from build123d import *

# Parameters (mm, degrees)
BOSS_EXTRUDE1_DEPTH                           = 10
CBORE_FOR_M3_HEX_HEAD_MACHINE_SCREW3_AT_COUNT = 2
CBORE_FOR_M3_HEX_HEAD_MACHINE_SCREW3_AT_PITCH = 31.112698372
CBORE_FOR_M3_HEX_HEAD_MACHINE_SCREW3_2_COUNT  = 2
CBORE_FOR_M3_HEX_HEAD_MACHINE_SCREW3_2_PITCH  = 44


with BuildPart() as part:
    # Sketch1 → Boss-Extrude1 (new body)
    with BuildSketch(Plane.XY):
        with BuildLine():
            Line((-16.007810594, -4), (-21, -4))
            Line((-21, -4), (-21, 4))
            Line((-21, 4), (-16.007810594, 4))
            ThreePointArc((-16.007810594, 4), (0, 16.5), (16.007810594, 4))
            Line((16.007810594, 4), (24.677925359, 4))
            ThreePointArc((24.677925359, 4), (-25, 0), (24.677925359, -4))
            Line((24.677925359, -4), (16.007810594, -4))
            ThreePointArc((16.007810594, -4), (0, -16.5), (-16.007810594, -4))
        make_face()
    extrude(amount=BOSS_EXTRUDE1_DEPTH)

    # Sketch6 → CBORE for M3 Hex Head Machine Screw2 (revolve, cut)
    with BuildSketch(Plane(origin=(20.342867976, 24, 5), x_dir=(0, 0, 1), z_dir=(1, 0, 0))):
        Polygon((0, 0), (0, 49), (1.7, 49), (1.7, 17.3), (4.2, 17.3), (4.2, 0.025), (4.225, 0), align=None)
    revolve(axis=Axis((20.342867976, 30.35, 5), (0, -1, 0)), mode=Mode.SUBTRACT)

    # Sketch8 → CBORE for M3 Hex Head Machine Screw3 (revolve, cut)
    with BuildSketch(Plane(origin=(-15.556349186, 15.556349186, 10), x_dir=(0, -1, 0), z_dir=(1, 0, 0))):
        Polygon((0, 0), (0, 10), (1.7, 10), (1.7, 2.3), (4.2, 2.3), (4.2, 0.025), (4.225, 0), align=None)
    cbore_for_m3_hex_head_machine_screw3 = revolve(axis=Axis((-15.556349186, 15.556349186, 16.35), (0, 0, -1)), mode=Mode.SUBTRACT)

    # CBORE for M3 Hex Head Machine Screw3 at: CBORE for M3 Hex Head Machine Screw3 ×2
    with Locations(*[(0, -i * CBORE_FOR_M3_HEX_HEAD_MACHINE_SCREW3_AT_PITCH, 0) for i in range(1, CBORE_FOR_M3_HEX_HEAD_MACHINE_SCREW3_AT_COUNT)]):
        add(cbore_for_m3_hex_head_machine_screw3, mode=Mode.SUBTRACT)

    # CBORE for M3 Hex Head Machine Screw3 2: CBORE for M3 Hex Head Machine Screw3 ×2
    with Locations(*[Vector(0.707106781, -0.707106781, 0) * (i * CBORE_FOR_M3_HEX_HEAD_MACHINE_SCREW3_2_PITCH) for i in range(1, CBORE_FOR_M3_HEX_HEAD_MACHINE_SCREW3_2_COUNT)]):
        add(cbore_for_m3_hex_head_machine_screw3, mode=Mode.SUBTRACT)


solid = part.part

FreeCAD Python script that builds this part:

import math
import FreeCAD as App
import Part
import Sketcher

V = App.Vector
Q = App.Units.Quantity

doc = App.newDocument("Part")
params = doc.addObject("Spreadsheet::Sheet", "Params")
for row, (alias, value) in enumerate([
    ("sketch1_radius", "25 mm"),
    ("sketch1_radius2", "16.5 mm"),
    ("sketch1_height", "8 mm"),
    ("pad1_length", "10 mm"),
    ("sketch2_width", "49 mm"),
    ("sketch2_width2", "31.7 mm"),
    ("sketch2_height", "2.5 mm"),
    ("sketch2_height2", "1.7 mm"),
    ("groove_angle", "360 deg"),
    ("sketch3_height", "10 mm"),
    ("sketch3_width", "2.5 mm"),
    ("sketch3_width2", "1.7 mm"),
    ("sketch3_height2", "7.7 mm"),
    ("groove2_angle", "360 deg"),
    ("linearpattern_pitch", "31.112698 mm"),
    ("linearpattern2_pitch", "44 mm"),
], start=1):
    params.set(f"A{row}", alias)
    params.set(f"B{row}", "=" + value)
    params.setAlias(f"B{row}", alias)

body = doc.addObject("PartDesign::Body", "Body")

# Sketch on XY plane
sketch1 = doc.addObject("Sketcher::SketchObject", "Sketch")
body.addObject(sketch1)
sketch1.AttachmentSupport = (doc.XY_Plane, [""])
sketch1.MapMode = "FlatFace"
sketch1.addGeometry([
    Part.LineSegment(V(-16, -4, 0), V(-21, -4, 0)),  # 0
    Part.LineSegment(V(-21, -4, 0), V(-21, 4, 0)),  # 1
    Part.LineSegment(V(-21, 4, 0), V(-16, 4, 0)),  # 2
    Part.ArcOfCircle(Part.Circle(V(0, 0, 0), V(0, 0, 1), 16.5), math.radians(14), math.radians(166)),  # 3
    Part.LineSegment(V(16, 4, 0), V(24.7, 4, 0)),  # 4
    Part.ArcOfCircle(Part.Circle(V(0, 0, 0), V(0, 0, 1), 25), math.radians(9), math.radians(351)),  # 5
    Part.LineSegment(V(24.7, -4, 0), V(16, -4, 0)),  # 6
    Part.ArcOfCircle(Part.Circle(V(0, 0, 0), V(0, 0, 1), 16.5), math.radians(-166), math.radians(-14)),  # 7
], False)
sketch1.addConstraint([
    Sketcher.Constraint("Coincident", 0, 2, 1, 1),
    Sketcher.Constraint("Coincident", 1, 2, 2, 1),
    Sketcher.Constraint("Coincident", 2, 2, 3, 2),
    Sketcher.Constraint("Coincident", 3, 1, 4, 1),
    Sketcher.Constraint("Coincident", 4, 2, 5, 1),
    Sketcher.Constraint("Coincident", 5, 2, 6, 1),
    Sketcher.Constraint("Coincident", 6, 2, 7, 2),
    Sketcher.Constraint("Coincident", 7, 1, 0, 1),
    Sketcher.Constraint("Horizontal", 0),
    Sketcher.Constraint("Vertical", 1),
    Sketcher.Constraint("Horizontal", 2),
    Sketcher.Constraint("Horizontal", 4),
    Sketcher.Constraint("Horizontal", 6),
    Sketcher.Constraint("Coincident", 3, 3, -1, 1),
    Sketcher.Constraint("Coincident", 5, 3, -1, 1),
    Sketcher.Constraint("Coincident", 7, 3, -1, 1),
    Sketcher.Constraint("Equal", 3, 7),
    Sketcher.Constraint("Horizontal", 2, 2, 3, 1),
    Sketcher.Constraint("Horizontal", 0, 2, 5, 2),
    Sketcher.Constraint("Vertical", 4, 2, 5, 2),
    Sketcher.Constraint("Radius", 5, 25.0),
    Sketcher.Constraint("Radius", 3, 16.5),
    Sketcher.Constraint("DistanceY", 1, 1, 1, 2, 8.0),
    Sketcher.Constraint("DistanceX", 0, 2, -1, 1, 21.0),
])
sketch1.setExpression("Constraints[20]", "Params.sketch1_radius")
sketch1.setExpression("Constraints[21]", "Params.sketch1_radius2")
sketch1.setExpression("Constraints[22]", "Params.sketch1_height")
pad1 = doc.addObject("PartDesign::Pad", "Pad")
body.addObject(pad1)
pad1.Profile = sketch1
pad1.setExpression("Length", "Params.pad1_length")

# Sketch on YZ plane
sketch2 = doc.addObject("Sketcher::SketchObject", "Sketch001")
body.addObject(sketch2)
sketch2.AttachmentSupport = (doc.YZ_Plane, [""])
sketch2.MapMode = "FlatFace"
sketch2.AttachmentOffset = App.Placement(V(0, 0, 20.342868), App.Rotation())
sketch2.addGeometry([
    Part.LineSegment(V(-25, 5, 0), V(24, 5, 0)),  # 0
    Part.LineSegment(V(24, 5, 0), V(24, 9.225, 0)),  # 1
    Part.LineSegment(V(24, 9.225, 0), V(23.975, 9.2, 0)),  # 2
    Part.LineSegment(V(23.975, 9.2, 0), V(6.7, 9.2, 0)),  # 3
    Part.LineSegment(V(6.7, 9.2, 0), V(6.7, 6.7, 0)),  # 4
    Part.LineSegment(V(6.7, 6.7, 0), V(-25, 6.7, 0)),  # 5
    Part.LineSegment(V(-25, 6.7, 0), V(-25, 5, 0)),  # 6
], False)
sketch2.addGeometry(Part.LineSegment(V(24, 5, 0), V(-25, 5, 0)), True)  # axis
sketch2.addConstraint([
    Sketcher.Constraint("Coincident", 0, 2, 1, 1),
    Sketcher.Constraint("Coincident", 1, 2, 2, 1),
    Sketcher.Constraint("Coincident", 2, 2, 3, 1),
    Sketcher.Constraint("Coincident", 3, 2, 4, 1),
    Sketcher.Constraint("Coincident", 4, 2, 5, 1),
    Sketcher.Constraint("Coincident", 5, 2, 6, 1),
    Sketcher.Constraint("Coincident", 6, 2, 0, 1),
    Sketcher.Constraint("Horizontal", 0),
    Sketcher.Constraint("Vertical", 1),
    Sketcher.Constraint("Horizontal", 3),
    Sketcher.Constraint("Vertical", 4),
    Sketcher.Constraint("Horizontal", 5),
    Sketcher.Constraint("Vertical", 6),
    Sketcher.Constraint("Horizontal", 7),
    Sketcher.Constraint("Coincident", 7, 1, 0, 2),
    Sketcher.Constraint("Vertical", 5, 2, 7, 2),
    Sketcher.Constraint("DistanceX", 0, 1, 0, 2, 49.0),
    Sketcher.Constraint("Angle", 2, Q("-135 deg")),
    Sketcher.Constraint("DistanceX", 5, 2, 5, 1, 31.7),
    Sketcher.Constraint("DistanceY", 4, 2, 4, 1, 2.5),
    Sketcher.Constraint("DistanceY", 6, 2, 6, 1, 1.7),
    Sketcher.Constraint("DistanceX", -1, 1, 0, 2, 24.0),
    Sketcher.Constraint("DistanceY", -1, 1, 0, 2, 5.0),
    Sketcher.Constraint("DistanceX", 3, 2, 3, 1, 17.275),
])
sketch2.setExpression("Constraints[16]", "Params.sketch2_width")
sketch2.setExpression("Constraints[18]", "Params.sketch2_width2")
sketch2.setExpression("Constraints[19]", "Params.sketch2_height")
sketch2.setExpression("Constraints[20]", "Params.sketch2_height2")
groove = doc.addObject("PartDesign::Groove", "Groove")
body.addObject(groove)
groove.Profile = sketch2
groove.ReferenceAxis = (sketch2, ["Axis0"])
groove.setExpression("Angle", "Params.groove_angle")

# Sketch on YZ plane
sketch3 = doc.addObject("Sketcher::SketchObject", "Sketch002")
body.addObject(sketch3)
sketch3.AttachmentSupport = (doc.YZ_Plane, [""])
sketch3.MapMode = "FlatFace"
sketch3.AttachmentOffset = App.Placement(V(0, 0, -15.556349), App.Rotation())
sketch3.addGeometry([
    Part.LineSegment(V(15.556, 0, 0), V(15.556, 10, 0)),  # 0
    Part.LineSegment(V(15.556, 10, 0), V(11.331, 10, 0)),  # 1
    Part.LineSegment(V(11.331, 10, 0), V(11.356, 9.975, 0)),  # 2
    Part.LineSegment(V(11.356, 9.975, 0), V(11.356, 7.7, 0)),  # 3
    Part.LineSegment(V(11.356, 7.7, 0), V(13.856, 7.7, 0)),  # 4
    Part.LineSegment(V(13.856, 7.7, 0), V(13.856, 0, 0)),  # 5
    Part.LineSegment(V(13.856, 0, 0), V(15.556, 0, 0)),  # 6
], False)
sketch3.addGeometry(Part.LineSegment(V(15.556, 10, 0), V(15.556, 0, 0)), True)  # axis
sketch3.addConstraint([
    Sketcher.Constraint("Coincident", 0, 2, 1, 1),
    Sketcher.Constraint("Coincident", 1, 2, 2, 1),
    Sketcher.Constraint("Coincident", 2, 2, 3, 1),
    Sketcher.Constraint("Coincident", 3, 2, 4, 1),
    Sketcher.Constraint("Coincident", 4, 2, 5, 1),
    Sketcher.Constraint("Coincident", 5, 2, 6, 1),
    Sketcher.Constraint("Coincident", 6, 2, 0, 1),
    Sketcher.Constraint("Vertical", 0),
    Sketcher.Constraint("Horizontal", 1),
    Sketcher.Constraint("Vertical", 3),
    Sketcher.Constraint("Horizontal", 4),
    Sketcher.Constraint("Vertical", 5),
    Sketcher.Constraint("Horizontal", 6),
    Sketcher.Constraint("Vertical", 7),
    Sketcher.Constraint("Coincident", 7, 1, 0, 2),
    Sketcher.Constraint("PointOnObject", 5, 2, -1),
    Sketcher.Constraint("PointOnObject", 7, 2, -1),
    Sketcher.Constraint("DistanceY", 0, 1, 0, 2, 10.0),
    Sketcher.Constraint("Angle", 2, Q("-45 deg")),
    Sketcher.Constraint("DistanceX", 4, 1, 4, 2, 2.5),
    Sketcher.Constraint("DistanceX", 6, 1, 6, 2, 1.7),
    Sketcher.Constraint("DistanceY", 5, 2, 5, 1, 7.7),
    Sketcher.Constraint("DistanceX", 1, 2, 1, 1, 4.225),
    Sketcher.Constraint("DistanceX", -1, 1, 0, 2, 15.556349),
])
sketch3.setExpression("Constraints[17]", "Params.sketch3_height")
sketch3.setExpression("Constraints[19]", "Params.sketch3_width")
sketch3.setExpression("Constraints[20]", "Params.sketch3_width2")
sketch3.setExpression("Constraints[21]", "Params.sketch3_height2")
groove2 = doc.addObject("PartDesign::Groove", "Groove001")
body.addObject(groove2)
groove2.Profile = sketch3
groove2.ReferenceAxis = (sketch3, ["Axis0"])
groove2.setExpression("Angle", "Params.groove2_angle")
doc.recompute()

linearpattern = doc.addObject("PartDesign::LinearPattern", "LinearPattern")
body.addObject(linearpattern)
linearpattern.Originals = [groove2]
linearpattern.Direction = (doc.Y_Axis, [""])
linearpattern.Mode = "offset"
linearpattern.setExpression("Offset", "Params.linearpattern_pitch")
linearpattern.Occurrences = 2
linearpattern.Reversed = True
body.Tip = linearpattern
doc.recompute()

datumline = doc.addObject("PartDesign::Line", "DatumLine")
body.addObject(datumline)
datumline.Placement = App.Placement(V(0, 0, 0), App.Rotation(V(0, 0, 1), V(0.707106781, -0.707106781, 0)))
linearpattern2 = doc.addObject("PartDesign::LinearPattern", "LinearPattern001")
body.addObject(linearpattern2)
linearpattern2.Originals = [groove2]
linearpattern2.Direction = (datumline, [""])
linearpattern2.Mode = "offset"
linearpattern2.setExpression("Offset", "Params.linearpattern2_pitch")
linearpattern2.Occurrences = 2
body.Tip = linearpattern2

doc.recompute()
